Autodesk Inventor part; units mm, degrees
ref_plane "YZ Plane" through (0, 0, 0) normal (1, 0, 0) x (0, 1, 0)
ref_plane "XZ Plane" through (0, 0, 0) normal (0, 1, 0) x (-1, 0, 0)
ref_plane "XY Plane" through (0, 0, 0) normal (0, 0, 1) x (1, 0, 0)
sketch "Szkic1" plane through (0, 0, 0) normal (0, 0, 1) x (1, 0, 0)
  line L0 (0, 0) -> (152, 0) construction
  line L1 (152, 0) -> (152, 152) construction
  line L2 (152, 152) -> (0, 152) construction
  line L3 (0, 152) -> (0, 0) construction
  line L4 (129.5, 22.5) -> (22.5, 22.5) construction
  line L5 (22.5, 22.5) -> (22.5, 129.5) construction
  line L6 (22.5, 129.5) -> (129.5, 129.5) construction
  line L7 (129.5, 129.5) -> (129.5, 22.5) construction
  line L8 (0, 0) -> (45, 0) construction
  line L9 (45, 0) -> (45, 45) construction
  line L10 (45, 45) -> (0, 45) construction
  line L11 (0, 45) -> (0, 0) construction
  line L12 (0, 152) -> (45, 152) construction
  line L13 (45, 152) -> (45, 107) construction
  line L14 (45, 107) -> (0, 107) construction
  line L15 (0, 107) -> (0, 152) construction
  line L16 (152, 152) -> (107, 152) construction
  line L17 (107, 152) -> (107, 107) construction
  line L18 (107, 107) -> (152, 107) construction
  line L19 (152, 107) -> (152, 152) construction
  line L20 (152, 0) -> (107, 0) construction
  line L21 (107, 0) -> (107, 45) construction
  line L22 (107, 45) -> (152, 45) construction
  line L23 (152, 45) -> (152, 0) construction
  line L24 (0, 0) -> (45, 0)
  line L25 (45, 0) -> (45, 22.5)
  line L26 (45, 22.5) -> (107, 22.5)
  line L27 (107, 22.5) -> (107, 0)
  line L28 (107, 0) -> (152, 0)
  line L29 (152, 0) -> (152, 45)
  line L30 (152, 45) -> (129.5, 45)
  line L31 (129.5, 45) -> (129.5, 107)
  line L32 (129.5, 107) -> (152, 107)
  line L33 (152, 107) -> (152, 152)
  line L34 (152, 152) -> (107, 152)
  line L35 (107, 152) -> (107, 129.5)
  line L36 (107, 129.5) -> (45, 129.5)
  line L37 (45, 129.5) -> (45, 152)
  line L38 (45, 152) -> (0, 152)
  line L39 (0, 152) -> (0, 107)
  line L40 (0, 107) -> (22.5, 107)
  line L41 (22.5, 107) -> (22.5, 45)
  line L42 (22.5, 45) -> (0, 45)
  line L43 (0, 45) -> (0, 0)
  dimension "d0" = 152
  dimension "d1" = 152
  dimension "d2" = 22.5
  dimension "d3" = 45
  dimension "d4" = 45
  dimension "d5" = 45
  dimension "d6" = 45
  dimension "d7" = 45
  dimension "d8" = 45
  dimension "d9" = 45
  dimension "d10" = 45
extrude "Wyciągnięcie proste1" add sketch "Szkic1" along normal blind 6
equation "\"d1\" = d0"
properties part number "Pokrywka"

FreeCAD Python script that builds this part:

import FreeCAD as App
import Part
import Sketcher


def add_polygon(sketch, points):
    """Adds a closed chain of lines whose ends are joined by coincident constraints."""
    first, n = sketch.GeometryCount, len(points)
    for a, b in zip(points, points[1:] + points[:1]):
        sketch.addGeometry(Part.LineSegment(App.Vector(*a, 0), App.Vector(*b, 0)), False)
    for i in range(n):
        sketch.addConstraint(Sketcher.Constraint("Coincident", first + i, 2, first + (i + 1) % n, 1))

doc = App.newDocument("Part")
body = doc.addObject("PartDesign::Body", "Body")

# Sketch on XY plane
sketch1 = body.newObject("Sketcher::SketchObject", "Sketch")
sketch1.AttachmentSupport = (doc.getObject("XY_Plane"), [""])
sketch1.MapMode = "FlatFace"
add_polygon(sketch1, [(0, 45), (0, 0), (45, 0), (45, 22), (107, 22), (107, 0), (152, 0), (152, 45), (130, 45), (130, 107), (152, 107), (152, 152), (107, 152), (107, 130), (45, 130), (45, 152), (0, 152), (0, 107), (22, 107), (22, 45)])  # lines 0-19
sketch1.addConstraint([
    Sketcher.Constraint("Vertical", 0),
    Sketcher.Constraint("Horizontal", 1),
    Sketcher.Constraint("Vertical", 2),
    Sketcher.Constraint("Horizontal", 3),
    Sketcher.Constraint("Vertical", 4),
    Sketcher.Constraint("Horizontal", 5),
    Sketcher.Constraint("Vertical", 6),
    Sketcher.Constraint("Horizontal", 7),
    Sketcher.Constraint("Vertical", 8),
    Sketcher.Constraint("Horizontal", 9),
    Sketcher.Constraint("Vertical", 10),
    Sketcher.Constraint("Horizontal", 11),
    Sketcher.Constraint("Vertical", 12),
    Sketcher.Constraint("Horizontal", 13),
    Sketcher.Constraint("Vertical", 14),
    Sketcher.Constraint("Horizontal", 15),
    Sketcher.Constraint("Vertical", 16),
    Sketcher.Constraint("Horizontal", 17),
    Sketcher.Constraint("Vertical", 18),
    Sketcher.Constraint("Horizontal", 19),
    Sketcher.Constraint("Coincident", 0, 2, -1, 1),
    Sketcher.Constraint("PointOnObject", 4, 2, -1),
    Sketcher.Constraint("PointOnObject", 15, 2, -2),
    Sketcher.Constraint("Horizontal", 11, 2, 14, 2),
    Sketcher.Constraint("Horizontal", 9, 2, 16, 2),
    Sketcher.Constraint("Horizontal", 7, 2, 18, 2),
    Sketcher.Constraint("Vertical", 6, 2, 9, 2),
    Sketcher.Constraint("Vertical", 4, 2, 11, 2),
    Sketcher.Constraint("Vertical", 2, 2, 13, 2),
    Sketcher.Constraint("Equal", 1, 5),
    Sketcher.Constraint("Equal", 9, 17),
    Sketcher.Constraint("Equal", 15, 0),
    Sketcher.Constraint("Equal", 19, 2),
    Sketcher.Constraint("Equal", 13, 8),
    Sketcher.Constraint("Equal", 6, 10),
    Sketcher.Constraint("Equal", 4, 12),
    Sketcher.Constraint("DistanceX", 1, 1, 1, 2, 45.0),
    Sketcher.Constraint("DistanceX", 7, 2, 7, 1, 22.5),
    Sketcher.Constraint("DistanceX", -1, 1, 5, 2, 152.0),
])
pad1 = body.newObject("PartDesign::Pad", "Pad")
pad1.Profile = sketch1
pad1.Length = 6

doc.recompute()
